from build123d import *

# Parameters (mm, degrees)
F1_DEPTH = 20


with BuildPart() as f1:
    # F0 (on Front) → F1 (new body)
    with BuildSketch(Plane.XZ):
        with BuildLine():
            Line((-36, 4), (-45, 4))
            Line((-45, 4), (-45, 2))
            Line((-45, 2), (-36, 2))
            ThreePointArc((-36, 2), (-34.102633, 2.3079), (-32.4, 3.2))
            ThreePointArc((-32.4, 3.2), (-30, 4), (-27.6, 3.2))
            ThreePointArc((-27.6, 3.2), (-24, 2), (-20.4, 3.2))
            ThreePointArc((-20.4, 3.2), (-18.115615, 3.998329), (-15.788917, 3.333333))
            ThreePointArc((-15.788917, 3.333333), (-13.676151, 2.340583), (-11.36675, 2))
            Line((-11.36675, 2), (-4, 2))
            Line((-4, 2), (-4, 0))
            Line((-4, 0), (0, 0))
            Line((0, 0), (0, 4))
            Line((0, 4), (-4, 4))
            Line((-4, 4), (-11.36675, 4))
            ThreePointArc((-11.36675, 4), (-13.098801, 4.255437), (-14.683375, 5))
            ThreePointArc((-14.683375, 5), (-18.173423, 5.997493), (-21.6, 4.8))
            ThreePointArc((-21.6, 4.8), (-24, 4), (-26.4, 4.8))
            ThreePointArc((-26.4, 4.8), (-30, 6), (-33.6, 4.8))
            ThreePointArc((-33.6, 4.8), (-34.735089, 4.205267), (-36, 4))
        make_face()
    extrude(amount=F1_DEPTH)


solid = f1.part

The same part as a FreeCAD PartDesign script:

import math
import FreeCAD as App
import Part
import Sketcher
Q = App.Units.Quantity

doc = App.newDocument("Part")
body = doc.addObject("PartDesign::Body", "Body")

sketch1 = body.newObject("Sketcher::SketchObject", "Sketch")
sketch1.AttachmentSupport = (doc.getObject("XZ_Plane"), [""])
sketch1.MapMode = "FlatFace"
sketch1.addGeometry(Part.LineSegment(App.Vector(-36, 4, 0), App.Vector(-45, 4, 0)), False)
sketch1.addGeometry(Part.LineSegment(App.Vector(-45, 4, 0), App.Vector(-45, 2, 0)), False)
sketch1.addGeometry(Part.LineSegment(App.Vector(-45, 2, 0), App.Vector(-36, 2, 0)), False)
sketch1.addGeometry(Part.ArcOfCircle(Part.Circle(App.Vector(-36, 8, 0), App.Vector(0, 0, 1), 6), math.radians(-90), math.radians(-53)), False)
sketch1.addGeometry(Part.ArcOfCircle(Part.Circle(App.Vector(-30, 0, 0), App.Vector(0, 0, 1), 4), math.radians(53), math.radians(127)), False)
sketch1.addGeometry(Part.ArcOfCircle(Part.Circle(App.Vector(-24, 8, 0), App.Vector(0, 0, 1), 6), math.radians(-127), math.radians(-53)), False)
sketch1.addGeometry(Part.ArcOfCircle(Part.Circle(App.Vector(-18, 0, 0), App.Vector(0, 0, 1), 4), math.radians(56), math.radians(127)), False)
sketch1.addGeometry(Part.ArcOfCircle(Part.Circle(App.Vector(-11.4, 10, 0), App.Vector(0, 0, 1), 8), math.radians(-124), math.radians(-90)), False)
sketch1.addGeometry(Part.LineSegment(App.Vector(-11.4, 2, 0), App.Vector(-4, 2, 0)), False)
sketch1.addGeometry(Part.LineSegment(App.Vector(-4, 2, 0), App.Vector(-4, 0, 0)), False)
sketch1.addGeometry(Part.LineSegment(App.Vector(-4, 0, 0), App.Vector(0, 0, 0)), False)
sketch1.addGeometry(Part.LineSegment(App.Vector(0, 0, 0), App.Vector(0, 4, 0)), False)
sketch1.addGeometry(Part.LineSegment(App.Vector(0, 4, 0), App.Vector(-11.4, 4, 0)), False)
sketch1.addGeometry(Part.ArcOfCircle(Part.Circle(App.Vector(-11.4, 10, 0), App.Vector(0, 0, 1), 6), math.radians(-124), math.radians(-90)), False)
sketch1.addGeometry(Part.ArcOfCircle(Part.Circle(App.Vector(-18, 0, 0), App.Vector(0, 0, 1), 6), math.radians(56), math.radians(127)), False)
sketch1.addGeometry(Part.ArcOfCircle(Part.Circle(App.Vector(-24, 8, 0), App.Vector(0, 0, 1), 4), math.radians(-127), math.radians(-53)), False)
sketch1.addGeometry(Part.ArcOfCircle(Part.Circle(App.Vector(-30, 0, 0), App.Vector(0, 0, 1), 6), math.radians(53), math.radians(127)), False)
sketch1.addGeometry(Part.ArcOfCircle(Part.Circle(App.Vector(-36, 8, 0), App.Vector(0, 0, 1), 4), math.radians(-90), math.radians(-53)), False)
sketch1.addConstraint(Sketcher.Constraint("Coincident", 0, 2, 1, 1))
sketch1.addConstraint(Sketcher.Constraint("Coincident", 1, 2, 2, 1))
sketch1.addConstraint(Sketcher.Constraint("Tangent", 2, 2, 3, 1))
sketch1.addConstraint(Sketcher.Constraint("Tangent", 3, 2, 4, 2))
sketch1.addConstraint(Sketcher.Constraint("Tangent", 4, 1, 5, 1))
sketch1.addConstraint(Sketcher.Constraint("Tangent", 5, 2, 6, 2))
sketch1.addConstraint(Sketcher.Constraint("Tangent", 6, 1, 7, 1))
sketch1.addConstraint(Sketcher.Constraint("Tangent", 7, 2, 8, 1))
sketch1.addConstraint(Sketcher.Constraint("Coincident", 8, 2, 9, 1))
sketch1.addConstraint(Sketcher.Constraint("Coincident", 9, 2, 10, 1))
sketch1.addConstraint(Sketcher.Constraint("Coincident", 10, 2, 11, 1))
sketch1.addConstraint(Sketcher.Constraint("Coincident", 11, 2, 12, 1))
sketch1.addConstraint(Sketcher.Constraint("Tangent", 12, 2, 13, 2))
sketch1.addConstraint(Sketcher.Constraint("Tangent", 13, 1, 14, 1))
sketch1.addConstraint(Sketcher.Constraint("Tangent", 14, 2, 15, 2))
sketch1.addConstraint(Sketcher.Constraint("Tangent", 15, 1, 16, 1))
sketch1.addConstraint(Sketcher.Constraint("Tangent", 16, 2, 17, 2))
sketch1.addConstraint(Sketcher.Constraint("Tangent", 17, 1, 0, 1))
sketch1.addConstraint(Sketcher.Constraint("Horizontal", 0))
sketch1.addConstraint(Sketcher.Constraint("Vertical", 1))
sketch1.addConstraint(Sketcher.Constraint("Horizontal", 2))
sketch1.addConstraint(Sketcher.Constraint("Horizontal", 8))
sketch1.addConstraint(Sketcher.Constraint("Vertical", 9))
sketch1.addConstraint(Sketcher.Constraint("Horizontal", 10))
sketch1.addConstraint(Sketcher.Constraint("Vertical", 11))
sketch1.addConstraint(Sketcher.Constraint("Horizontal", 12))
sketch1.addConstraint(Sketcher.Constraint("Coincident", 10, 2, -1, 1))
sketch1.addConstraint(Sketcher.Constraint("Coincident", 14, 3, 6, 3))
sketch1.addConstraint(Sketcher.Constraint("Coincident", 15, 3, 5, 3))
sketch1.addConstraint(Sketcher.Constraint("Coincident", 16, 3, 4, 3))
sketch1.addConstraint(Sketcher.Constraint("Equal", 4, 6))
sketch1.addConstraint(Sketcher.Constraint("Equal", 3, 13))
sketch1.addConstraint(Sketcher.Constraint("Equal", 5, 14))
sketch1.addConstraint(Sketcher.Constraint("PointOnObject", 4, 3, -1))
sketch1.addConstraint(Sketcher.Constraint("PointOnObject", 14, 3, -1))
sketch1.addConstraint(Sketcher.Constraint("Horizontal", 3, 2, 4, 1))
sketch1.addConstraint(Sketcher.Constraint("Horizontal", 2, 2, 7, 2))
sketch1.addConstraint(Sketcher.Constraint("Horizontal", 0, 2, 11, 2))
sketch1.addConstraint(Sketcher.Constraint("Horizontal", 15, 1, 16, 2))
sketch1.addConstraint(Sketcher.Constraint("Vertical", 17, 3, 2, 2))
sketch1.addConstraint(Sketcher.Constraint("Vertical", 7, 2, 12, 2))
sketch1.addConstraint(Sketcher.Constraint("Equal", 1, 9))
sketch1.addConstraint(Sketcher.Constraint("Equal", 10, 11))
sketch1.addConstraint(Sketcher.Constraint("Radius", 4, Q("4 mm")))
sketch1.addConstraint(Sketcher.Constraint("Radius", 5, Q("6 mm")))
sketch1.addConstraint(Sketcher.Constraint("DistanceX", 0, 2, 0, 1, Q("9 mm")))
sketch1.addConstraint(Sketcher.Constraint("DistanceX", 4, 3, -1, 1, Q("30 mm")))
sketch1.addConstraint(Sketcher.Constraint("DistanceX", 5, 3, -1, 1, Q("24 mm")))
pad1 = body.newObject("PartDesign::Pad", "Pad")
pad1.Profile = sketch1
pad1.Length = 20

doc.recompute()
